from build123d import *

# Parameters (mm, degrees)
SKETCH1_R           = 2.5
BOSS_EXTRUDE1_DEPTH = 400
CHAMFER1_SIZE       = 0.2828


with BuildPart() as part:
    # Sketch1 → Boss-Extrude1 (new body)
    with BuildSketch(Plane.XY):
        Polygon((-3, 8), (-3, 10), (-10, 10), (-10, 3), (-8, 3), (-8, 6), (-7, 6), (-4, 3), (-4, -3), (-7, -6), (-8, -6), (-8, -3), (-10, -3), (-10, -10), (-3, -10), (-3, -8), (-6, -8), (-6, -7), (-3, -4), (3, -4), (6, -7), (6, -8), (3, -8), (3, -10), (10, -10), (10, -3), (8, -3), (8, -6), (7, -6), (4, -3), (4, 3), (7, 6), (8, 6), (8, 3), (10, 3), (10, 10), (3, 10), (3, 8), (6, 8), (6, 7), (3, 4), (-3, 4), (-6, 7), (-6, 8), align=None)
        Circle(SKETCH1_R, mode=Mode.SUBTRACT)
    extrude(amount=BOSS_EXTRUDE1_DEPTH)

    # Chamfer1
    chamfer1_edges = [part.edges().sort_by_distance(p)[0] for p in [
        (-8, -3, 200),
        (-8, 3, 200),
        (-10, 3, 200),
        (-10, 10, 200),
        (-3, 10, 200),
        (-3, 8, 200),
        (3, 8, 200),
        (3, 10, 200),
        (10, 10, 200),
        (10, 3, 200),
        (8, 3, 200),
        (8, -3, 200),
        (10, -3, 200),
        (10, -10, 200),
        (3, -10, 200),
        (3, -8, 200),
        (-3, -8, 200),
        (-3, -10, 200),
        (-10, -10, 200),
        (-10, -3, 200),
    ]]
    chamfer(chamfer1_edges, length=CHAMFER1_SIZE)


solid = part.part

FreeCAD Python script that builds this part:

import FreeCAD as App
import Part
import Sketcher


def edges_at(feature, points):
    """Names of the edges that pass closest to the given points."""
    edges = feature.Shape.Edges
    near = lambda p: min(range(len(edges)), key=lambda i: edges[i].distToShape(Part.Vertex(*p))[0])
    return sorted({f"Edge{near(p) + 1}" for p in points})


def add_polygon(sketch, points):
    """Adds a closed chain of lines whose ends are joined by coincident constraints."""
    first, n = sketch.GeometryCount, len(points)
    for a, b in zip(points, points[1:] + points[:1]):
        sketch.addGeometry(Part.LineSegment(App.Vector(*a, 0), App.Vector(*b, 0)), False)
    for i in range(n):
        sketch.addConstraint(Sketcher.Constraint("Coincident", first + i, 2, first + (i + 1) % n, 1))

doc = App.newDocument("Part")
body = doc.addObject("PartDesign::Body", "Body")

sketch1 = body.newObject("Sketcher::SketchObject", "Sketch")
sketch1.AttachmentSupport = (doc.getObject("XY_Plane"), [""])
sketch1.MapMode = "FlatFace"
add_polygon(sketch1, [(-3, 8), (-3, 10), (-10, 10), (-10, 3), (-8, 3), (-8, 6), (-7, 6), (-4, 3), (-4, -3), (-7, -6), (-8, -6), (-8, -3), (-10, -3), (-10, -10), (-3, -10), (-3, -8), (-6, -8), (-6, -7), (-3, -4), (3, -4), (6, -7), (6, -8), (3, -8), (3, -10), (10, -10), (10, -3), (8, -3), (8, -6), (7, -6), (4, -3), (4, 3), (7, 6), (8, 6), (8, 3), (10, 3), (10, 10), (3, 10), (3, 8), (6, 8), (6, 7), (3, 4), (-3, 4), (-6, 7), (-6, 8)])
sketch1.addGeometry(Part.Circle(App.Vector(0, 0, 0), App.Vector(0, 0, 1), 2.5), False)
sketch1.addConstraint(Sketcher.Constraint("Vertical", 0))
sketch1.addConstraint(Sketcher.Constraint("Horizontal", 1))
sketch1.addConstraint(Sketcher.Constraint("Vertical", 2))
sketch1.addConstraint(Sketcher.Constraint("Horizontal", 3))
sketch1.addConstraint(Sketcher.Constraint("Vertical", 4))
sketch1.addConstraint(Sketcher.Constraint("Horizontal", 5))
sketch1.addConstraint(Sketcher.Constraint("Vertical", 7))
sketch1.addConstraint(Sketcher.Constraint("Horizontal", 9))
sketch1.addConstraint(Sketcher.Constraint("Vertical", 10))
sketch1.addConstraint(Sketcher.Constraint("Horizontal", 11))
sketch1.addConstraint(Sketcher.Constraint("Vertical", 12))
sketch1.addConstraint(Sketcher.Constraint("Horizontal", 13))
sketch1.addConstraint(Sketcher.Constraint("Vertical", 14))
sketch1.addConstraint(Sketcher.Constraint("Horizontal", 15))
sketch1.addConstraint(Sketcher.Constraint("Vertical", 16))
sketch1.addConstraint(Sketcher.Constraint("Horizontal", 18))
sketch1.addConstraint(Sketcher.Constraint("Vertical", 20))
sketch1.addConstraint(Sketcher.Constraint("Horizontal", 21))
sketch1.addConstraint(Sketcher.Constraint("Vertical", 22))
sketch1.addConstraint(Sketcher.Constraint("Horizontal", 23))
sketch1.addConstraint(Sketcher.Constraint("Vertical", 24))
sketch1.addConstraint(Sketcher.Constraint("Horizontal", 25))
sketch1.addConstraint(Sketcher.Constraint("Vertical", 26))
sketch1.addConstraint(Sketcher.Constraint("Horizontal", 27))
sketch1.addConstraint(Sketcher.Constraint("Vertical", 29))
sketch1.addConstraint(Sketcher.Constraint("Horizontal", 31))
sketch1.addConstraint(Sketcher.Constraint("Vertical", 32))
sketch1.addConstraint(Sketcher.Constraint("Horizontal", 33))
sketch1.addConstraint(Sketcher.Constraint("Vertical", 34))
sketch1.addConstraint(Sketcher.Constraint("Horizontal", 35))
sketch1.addConstraint(Sketcher.Constraint("Vertical", 36))
sketch1.addConstraint(Sketcher.Constraint("Horizontal", 37))
sketch1.addConstraint(Sketcher.Constraint("Vertical", 38))
sketch1.addConstraint(Sketcher.Constraint("Horizontal", 40))
sketch1.addConstraint(Sketcher.Constraint("Vertical", 42))
sketch1.addConstraint(Sketcher.Constraint("Horizontal", 43))
sketch1.addConstraint(Sketcher.Constraint("Coincident", 44, 3, -1, 1))
sketch1.addConstraint(Sketcher.Constraint("Symmetric", 0, 2, 22, 2, -1, 1))
sketch1.addConstraint(Sketcher.Constraint("Symmetric", 2, 2, 24, 2, -1, 1))
sketch1.addConstraint(Sketcher.Constraint("Symmetric", 4, 2, 26, 2, -1, 1))
sketch1.addConstraint(Sketcher.Constraint("Symmetric", 6, 2, 28, 2, -1, 1))
sketch1.addConstraint(Sketcher.Constraint("Symmetric", 8, 2, 30, 2, -1, 1))
sketch1.addConstraint(Sketcher.Constraint("Symmetric", 10, 2, 32, 2, -1, 1))
sketch1.addConstraint(Sketcher.Constraint("Symmetric", 12, 2, 34, 2, -1, 1))
sketch1.addConstraint(Sketcher.Constraint("Symmetric", 14, 2, 36, 2, -1, 1))
sketch1.addConstraint(Sketcher.Constraint("Symmetric", 16, 2, 38, 2, -1, 1))
sketch1.addConstraint(Sketcher.Constraint("Symmetric", 17, 2, 39, 2, -1, 1))
sketch1.addConstraint(Sketcher.Constraint("Symmetric", 19, 2, 41, 2, -1, 1))
sketch1.addConstraint(Sketcher.Constraint("Symmetric", 16, 2, 19, 2, -2))
sketch1.addConstraint(Sketcher.Constraint("Symmetric", 14, 2, 21, 2, -2))
sketch1.addConstraint(Sketcher.Constraint("Symmetric", 12, 2, 23, 2, -2))
sketch1.addConstraint(Sketcher.Constraint("Symmetric", 10, 2, 25, 2, -2))
sketch1.addConstraint(Sketcher.Constraint("Symmetric", 8, 2, 27, 2, -2))
sketch1.addConstraint(Sketcher.Constraint("Perpendicular", 6, 8))
sketch1.addConstraint(Sketcher.Constraint("Parallel", 8, 17))
sketch1.addConstraint(Sketcher.Constraint("Perpendicular", 17, 19))
sketch1.addConstraint(Sketcher.Constraint("Parallel", 19, 28))
sketch1.addConstraint(Sketcher.Constraint("Perpendicular", 28, 30))
sketch1.addConstraint(Sketcher.Constraint("Perpendicular", 39, 41))
sketch1.addConstraint(Sketcher.Constraint("Horizontal", 3, 2, 6, 2))
sketch1.addConstraint(Sketcher.Constraint("Horizontal", 7, 2, 10, 2))
sketch1.addConstraint(Sketcher.Constraint("Horizontal", 37, 2, 42, 2))
sketch1.addConstraint(Sketcher.Constraint("Vertical", 14, 2, 17, 2))
sketch1.addConstraint(Sketcher.Constraint("Equal", 33, 0))
sketch1.addConstraint(Sketcher.Constraint("Equal", 35, 2))
sketch1.addConstraint(Sketcher.Constraint("Equal", 43, 4))
sketch1.addConstraint(Sketcher.Constraint("Equal", 40, 7))
sketch1.addConstraint(Sketcher.Constraint("Equal", 31, 16))
sketch1.addConstraint(Sketcher.Constraint("Diameter", 44, 5.0))
sketch1.addConstraint(Sketcher.Constraint("DistanceX", 1, 2, 1, 1, 7.0))
sketch1.addConstraint(Sketcher.Constraint("DistanceX", 3, 1, 3, 2, 2.0))
sketch1.addConstraint(Sketcher.Constraint("DistanceX", 5, 1, 5, 2, 1.0))
sketch1.addConstraint(Sketcher.Constraint("DistanceX", 15, 2, 15, 1, 3.0))
sketch1.addConstraint(Sketcher.Constraint("DistanceX", 18, 1, 18, 2, 6.0))
pad1 = body.newObject("PartDesign::Pad", "Pad")
pad1.Profile = sketch1
pad1.Length = 400
doc.recompute()

chamfer = body.newObject("PartDesign::Chamfer", "Chamfer")
chamfer.Base = (pad1, edges_at(pad1, [
    (-8, -3, 200),
    (-8, 3, 200),
    (-10, 3, 200),
    (-10, 10, 200),
    (-3, 10, 200),
    (-3, 8, 200),
    (3, 8, 200),
    (3, 10, 200),
    (10, 10, 200),
    (10, 3, 200),
    (8, 3, 200),
    (8, -3, 200),
    (10, -3, 200),
    (10, -10, 200),
    (3, -10, 200),
    (3, -8, 200),
    (-3, -8, 200),
    (-3, -10, 200),
    (-10, -10, 200),
    (-10, -3, 200),
]))
chamfer.Size = 0.2828

doc.recompute()
